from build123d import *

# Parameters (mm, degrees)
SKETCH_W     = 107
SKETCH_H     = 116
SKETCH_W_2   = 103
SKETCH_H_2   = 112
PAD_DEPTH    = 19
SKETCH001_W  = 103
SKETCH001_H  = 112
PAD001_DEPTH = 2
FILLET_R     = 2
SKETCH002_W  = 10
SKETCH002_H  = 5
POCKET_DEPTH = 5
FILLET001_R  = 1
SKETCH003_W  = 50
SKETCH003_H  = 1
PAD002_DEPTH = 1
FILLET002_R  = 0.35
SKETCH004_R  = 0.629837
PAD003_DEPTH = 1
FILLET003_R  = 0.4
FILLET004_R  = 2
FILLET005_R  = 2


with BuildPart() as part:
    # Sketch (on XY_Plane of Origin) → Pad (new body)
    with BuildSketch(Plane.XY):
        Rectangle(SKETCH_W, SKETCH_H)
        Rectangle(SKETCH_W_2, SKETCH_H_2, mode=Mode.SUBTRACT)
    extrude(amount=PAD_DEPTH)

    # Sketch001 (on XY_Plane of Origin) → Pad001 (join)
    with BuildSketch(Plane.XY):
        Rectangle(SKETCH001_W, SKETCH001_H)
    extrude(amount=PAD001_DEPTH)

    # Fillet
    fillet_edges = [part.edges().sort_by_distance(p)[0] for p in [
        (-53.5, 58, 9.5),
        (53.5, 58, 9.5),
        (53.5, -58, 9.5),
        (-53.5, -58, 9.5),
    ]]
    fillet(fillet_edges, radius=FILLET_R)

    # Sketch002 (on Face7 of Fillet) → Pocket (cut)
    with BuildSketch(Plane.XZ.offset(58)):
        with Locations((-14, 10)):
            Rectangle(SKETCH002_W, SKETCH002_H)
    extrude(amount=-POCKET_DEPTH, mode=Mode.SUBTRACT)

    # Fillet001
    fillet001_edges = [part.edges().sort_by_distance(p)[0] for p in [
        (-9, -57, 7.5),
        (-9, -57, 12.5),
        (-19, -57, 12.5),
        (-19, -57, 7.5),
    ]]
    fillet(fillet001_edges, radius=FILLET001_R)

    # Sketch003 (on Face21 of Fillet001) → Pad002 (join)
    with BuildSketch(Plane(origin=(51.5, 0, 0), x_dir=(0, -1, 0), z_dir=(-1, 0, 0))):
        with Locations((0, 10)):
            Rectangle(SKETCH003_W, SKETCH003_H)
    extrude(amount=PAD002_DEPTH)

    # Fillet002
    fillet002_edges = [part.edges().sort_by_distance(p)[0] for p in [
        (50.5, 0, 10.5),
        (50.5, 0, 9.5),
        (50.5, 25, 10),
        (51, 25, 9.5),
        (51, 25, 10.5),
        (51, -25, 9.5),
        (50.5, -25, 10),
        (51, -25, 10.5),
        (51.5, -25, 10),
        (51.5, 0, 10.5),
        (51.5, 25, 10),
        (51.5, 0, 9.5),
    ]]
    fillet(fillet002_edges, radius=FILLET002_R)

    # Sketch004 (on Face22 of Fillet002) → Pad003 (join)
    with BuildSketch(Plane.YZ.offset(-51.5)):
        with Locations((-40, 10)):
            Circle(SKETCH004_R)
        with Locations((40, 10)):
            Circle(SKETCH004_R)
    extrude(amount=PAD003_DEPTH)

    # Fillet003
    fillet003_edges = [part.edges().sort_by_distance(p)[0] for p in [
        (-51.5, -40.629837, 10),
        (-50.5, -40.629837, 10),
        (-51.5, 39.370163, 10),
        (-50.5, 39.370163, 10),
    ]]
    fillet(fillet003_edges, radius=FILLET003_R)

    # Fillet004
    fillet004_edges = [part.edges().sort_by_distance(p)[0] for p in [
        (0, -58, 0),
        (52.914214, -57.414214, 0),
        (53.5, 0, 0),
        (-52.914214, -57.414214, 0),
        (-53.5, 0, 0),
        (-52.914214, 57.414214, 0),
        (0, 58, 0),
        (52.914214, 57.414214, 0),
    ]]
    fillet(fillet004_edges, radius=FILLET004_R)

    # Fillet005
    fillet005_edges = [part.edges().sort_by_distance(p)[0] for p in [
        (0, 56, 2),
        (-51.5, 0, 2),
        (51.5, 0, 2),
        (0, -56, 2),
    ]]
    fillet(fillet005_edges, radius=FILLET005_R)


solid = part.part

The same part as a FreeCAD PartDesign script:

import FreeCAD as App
import Part
import Sketcher

V = App.Vector


def edges_at(feature, points):
    """Names of the edges that pass closest to the given points."""
    edges = feature.Shape.Edges
    near = lambda p: min(range(len(edges)), key=lambda i: edges[i].distToShape(Part.Vertex(*p))[0])
    return sorted({f"Edge{near(p) + 1}" for p in points})


def add_polygon(sketch, points):
    """Adds a closed chain of lines whose ends are joined by coincident constraints."""
    first, n = sketch.GeometryCount, len(points)
    for a, b in zip(points, points[1:] + points[:1]):
        sketch.addGeometry(Part.LineSegment(App.Vector(*a, 0), App.Vector(*b, 0)), False)
    for i in range(n):
        sketch.addConstraint(Sketcher.Constraint("Coincident", first + i, 2, first + (i + 1) % n, 1))

doc = App.newDocument("Part")
body = doc.addObject("PartDesign::Body", "Body")

# Sketch on XY plane
sketch1 = body.newObject("Sketcher::SketchObject", "Sketch")
sketch1.AttachmentSupport = (doc.getObject("XY_Plane"), [""])
sketch1.MapMode = "FlatFace"
add_polygon(sketch1, [(-54, 58), (-54, -58), (54, -58), (54, 58)])  # lines 0-3
add_polygon(sketch1, [(52, -56), (-52, -56), (-52, 56), (52, 56)])  # lines 4-7
sketch1.addConstraint(Sketcher.Constraint("Vertical", 0))
sketch1.addConstraint(Sketcher.Constraint("Horizontal", 1))
sketch1.addConstraint(Sketcher.Constraint("Vertical", 2))
sketch1.addConstraint(Sketcher.Constraint("Horizontal", 3))
sketch1.addConstraint(Sketcher.Constraint("Horizontal", 4))
sketch1.addConstraint(Sketcher.Constraint("Vertical", 5))
sketch1.addConstraint(Sketcher.Constraint("Horizontal", 6))
sketch1.addConstraint(Sketcher.Constraint("Vertical", 7))
sketch1.addConstraint(Sketcher.Constraint("Symmetric", 0, 2, 2, 2, -1, 1))
sketch1.addConstraint(Sketcher.Constraint("Symmetric", 4, 2, 6, 2, -1, 1))
sketch1.addConstraint(Sketcher.Constraint("DistanceX", 1, 1, 1, 2, 107.0))
sketch1.addConstraint(Sketcher.Constraint("DistanceX", 4, 2, 4, 1, 103.0))
sketch1.addConstraint(Sketcher.Constraint("DistanceY", 0, 2, 0, 1, 116.0))
sketch1.addConstraint(Sketcher.Constraint("DistanceY", 5, 1, 5, 2, 112.0))
pad1 = body.newObject("PartDesign::Pad", "Pad")
pad1.Profile = sketch1
pad1.Length = 19

# Sketch on XY plane
sketch2 = body.newObject("Sketcher::SketchObject", "Sketch001")
sketch2.AttachmentSupport = (doc.getObject("XY_Plane"), [""])
sketch2.MapMode = "FlatFace"
add_polygon(sketch2, [(-52, 56), (-52, -56), (52, -56), (52, 56)])  # lines 0-3
sketch2.addConstraint(Sketcher.Constraint("Vertical", 0))
sketch2.addConstraint(Sketcher.Constraint("Horizontal", 1))
sketch2.addConstraint(Sketcher.Constraint("Vertical", 2))
sketch2.addConstraint(Sketcher.Constraint("Horizontal", 3))
sketch2.addConstraint(Sketcher.Constraint("Symmetric", 0, 2, 2, 2, -1, 1))
sketch2.addConstraint(Sketcher.Constraint("DistanceX", 1, 1, 1, 2, 103.0))
sketch2.addConstraint(Sketcher.Constraint("DistanceY", 0, 2, 0, 1, 112.0))
pad2 = body.newObject("PartDesign::Pad", "Pad001")
pad2.Profile = sketch2
pad2.Length = 2
doc.recompute()

fillet = body.newObject("PartDesign::Fillet", "Fillet")
fillet.Base = (pad2, edges_at(pad2, [
    (-53.5, 58, 9.5),
    (53.5, 58, 9.5),
    (53.5, -58, 9.5),
    (-53.5, -58, 9.5),
]))
fillet.Radius = 2

# Sketch on XZ plane
sketch3 = body.newObject("Sketcher::SketchObject", "Sketch002")
sketch3.AttachmentSupport = (doc.getObject("XZ_Plane"), [""])
sketch3.MapMode = "FlatFace"
sketch3.AttachmentOffset = App.Placement(V(0, 0, 58), App.Rotation())
add_polygon(sketch3, [(-19, 12), (-19, 8), (-9, 8), (-9, 12)])  # lines 0-3
sketch3.addConstraint(Sketcher.Constraint("Vertical", 0))
sketch3.addConstraint(Sketcher.Constraint("Horizontal", 1))
sketch3.addConstraint(Sketcher.Constraint("Vertical", 2))
sketch3.addConstraint(Sketcher.Constraint("Horizontal", 3))
sketch3.addConstraint(Sketcher.Constraint("DistanceX", 1, 1, 1, 2, 10.0))
sketch3.addConstraint(Sketcher.Constraint("DistanceY", 0, 2, 0, 1, 5.0))
sketch3.addConstraint(Sketcher.Constraint("DistanceX", 0, 2, -1, 1, 19.0))
sketch3.addConstraint(Sketcher.Constraint("DistanceY", -1, 1, 0, 2, 7.5))
pocket1 = body.newObject("PartDesign::Pocket", "Pocket")
pocket1.Profile = sketch3
pocket1.Length = 5
doc.recompute()

fillet2 = body.newObject("PartDesign::Fillet", "Fillet001")
fillet2.Base = (pocket1, edges_at(pocket1, [
    (-9, -57, 7.5),
    (-9, -57, 12.5),
    (-19, -57, 12.5),
    (-19, -57, 7.5),
]))
fillet2.Radius = 1

# Sketch on YZ plane
sketch4 = body.newObject("Sketcher::SketchObject", "Sketch003")
sketch4.AttachmentSupport = (doc.getObject("YZ_Plane"), [""])
sketch4.MapMode = "FlatFace"
sketch4.AttachmentOffset = App.Placement(V(0, 0, 51.5), App.Rotation())
add_polygon(sketch4, [(25, 10.5), (25, 9.5), (-25, 9.5), (-25, 10.5)])  # lines 0-3
sketch4.addConstraint(Sketcher.Constraint("Vertical", 0))
sketch4.addConstraint(Sketcher.Constraint("Horizontal", 1))
sketch4.addConstraint(Sketcher.Constraint("Vertical", 2))
sketch4.addConstraint(Sketcher.Constraint("Horizontal", 3))
sketch4.addConstraint(Sketcher.Constraint("DistanceX", 1, 2, 1, 1, 50.0))
sketch4.addConstraint(Sketcher.Constraint("DistanceY", 0, 2, 0, 1, 1.0))
sketch4.addConstraint(Sketcher.Constraint("DistanceX", -1, 1, 0, 2, 25.0))
sketch4.addConstraint(Sketcher.Constraint("DistanceY", -1, 1, 0, 2, 9.5))
pad3 = body.newObject("PartDesign::Pad", "Pad002")
pad3.Profile = sketch4
pad3.Length = 1
pad3.Reversed = True
doc.recompute()

fillet3 = body.newObject("PartDesign::Fillet", "Fillet002")
fillet3.Base = (pad3, edges_at(pad3, [
    (50.5, 0, 10.5),
    (50.5, 0, 9.5),
    (50.5, 25, 10),
    (51, 25, 9.5),
    (51, 25, 10.5),
    (51, -25, 9.5),
    (50.5, -25, 10),
    (51, -25, 10.5),
    (51.5, -25, 10),
    (51.5, 0, 10.5),
    (51.5, 25, 10),
    (51.5, 0, 9.5),
]))
fillet3.Radius = 0.35

# Sketch on YZ plane
sketch5 = body.newObject("Sketcher::SketchObject", "Sketch004")
sketch5.AttachmentSupport = (doc.getObject("YZ_Plane"), [""])
sketch5.MapMode = "FlatFace"
sketch5.AttachmentOffset = App.Placement(V(0, 0, -51.5), App.Rotation())
sketch5.addGeometry(Part.Circle(V(-40, 10, 0), V(0, 0, 1), 0.6), False)
sketch5.addGeometry(Part.Circle(V(40, 10, 0), V(0, 0, 1), 0.6), False)
sketch5.addConstraint(Sketcher.Constraint("Equal", 0, 1))
sketch5.addConstraint(Sketcher.Constraint("Symmetric", 0, 3, 1, 3, -2))
sketch5.addConstraint(Sketcher.Constraint("DistanceX", 0, 3, -1, 1, 40.0))
sketch5.addConstraint(Sketcher.Constraint("DistanceY", -1, 1, 0, 3, 10.0))
sketch5.addConstraint(Sketcher.Constraint("Diameter", 0, 1.259674))
pad4 = body.newObject("PartDesign::Pad", "Pad003")
pad4.Profile = sketch5
pad4.Length = 1
doc.recompute()

fillet4 = body.newObject("PartDesign::Fillet", "Fillet003")
fillet4.Base = (pad4, edges_at(pad4, [
    (-51.5, -40.63, 10),
    (-50.5, -40.63, 10),
    (-51.5, 39.37, 10),
    (-50.5, 39.37, 10),
]))
fillet4.Radius = 0.4
doc.recompute()

fillet5 = body.newObject("PartDesign::Fillet", "Fillet004")
fillet5.Base = (fillet4, edges_at(fillet4, [
    (0, -58, 0),
    (52.914, -57.414, 0),
    (53.5, 0, 0),
    (-52.914, -57.414, 0),
    (-53.5, 0, 0),
    (-52.914, 57.414, 0),
    (0, 58, 0),
    (52.914, 57.414, 0),
]))
fillet5.Radius = 2
doc.recompute()

fillet6 = body.newObject("PartDesign::Fillet", "Fillet005")
fillet6.Base = (fillet5, edges_at(fillet5, [
    (0, 56, 2),
    (-51.5, 0, 2),
    (51.5, 0, 2),
    (0, -56, 2),
]))
fillet6.Radius = 2

doc.recompute()
